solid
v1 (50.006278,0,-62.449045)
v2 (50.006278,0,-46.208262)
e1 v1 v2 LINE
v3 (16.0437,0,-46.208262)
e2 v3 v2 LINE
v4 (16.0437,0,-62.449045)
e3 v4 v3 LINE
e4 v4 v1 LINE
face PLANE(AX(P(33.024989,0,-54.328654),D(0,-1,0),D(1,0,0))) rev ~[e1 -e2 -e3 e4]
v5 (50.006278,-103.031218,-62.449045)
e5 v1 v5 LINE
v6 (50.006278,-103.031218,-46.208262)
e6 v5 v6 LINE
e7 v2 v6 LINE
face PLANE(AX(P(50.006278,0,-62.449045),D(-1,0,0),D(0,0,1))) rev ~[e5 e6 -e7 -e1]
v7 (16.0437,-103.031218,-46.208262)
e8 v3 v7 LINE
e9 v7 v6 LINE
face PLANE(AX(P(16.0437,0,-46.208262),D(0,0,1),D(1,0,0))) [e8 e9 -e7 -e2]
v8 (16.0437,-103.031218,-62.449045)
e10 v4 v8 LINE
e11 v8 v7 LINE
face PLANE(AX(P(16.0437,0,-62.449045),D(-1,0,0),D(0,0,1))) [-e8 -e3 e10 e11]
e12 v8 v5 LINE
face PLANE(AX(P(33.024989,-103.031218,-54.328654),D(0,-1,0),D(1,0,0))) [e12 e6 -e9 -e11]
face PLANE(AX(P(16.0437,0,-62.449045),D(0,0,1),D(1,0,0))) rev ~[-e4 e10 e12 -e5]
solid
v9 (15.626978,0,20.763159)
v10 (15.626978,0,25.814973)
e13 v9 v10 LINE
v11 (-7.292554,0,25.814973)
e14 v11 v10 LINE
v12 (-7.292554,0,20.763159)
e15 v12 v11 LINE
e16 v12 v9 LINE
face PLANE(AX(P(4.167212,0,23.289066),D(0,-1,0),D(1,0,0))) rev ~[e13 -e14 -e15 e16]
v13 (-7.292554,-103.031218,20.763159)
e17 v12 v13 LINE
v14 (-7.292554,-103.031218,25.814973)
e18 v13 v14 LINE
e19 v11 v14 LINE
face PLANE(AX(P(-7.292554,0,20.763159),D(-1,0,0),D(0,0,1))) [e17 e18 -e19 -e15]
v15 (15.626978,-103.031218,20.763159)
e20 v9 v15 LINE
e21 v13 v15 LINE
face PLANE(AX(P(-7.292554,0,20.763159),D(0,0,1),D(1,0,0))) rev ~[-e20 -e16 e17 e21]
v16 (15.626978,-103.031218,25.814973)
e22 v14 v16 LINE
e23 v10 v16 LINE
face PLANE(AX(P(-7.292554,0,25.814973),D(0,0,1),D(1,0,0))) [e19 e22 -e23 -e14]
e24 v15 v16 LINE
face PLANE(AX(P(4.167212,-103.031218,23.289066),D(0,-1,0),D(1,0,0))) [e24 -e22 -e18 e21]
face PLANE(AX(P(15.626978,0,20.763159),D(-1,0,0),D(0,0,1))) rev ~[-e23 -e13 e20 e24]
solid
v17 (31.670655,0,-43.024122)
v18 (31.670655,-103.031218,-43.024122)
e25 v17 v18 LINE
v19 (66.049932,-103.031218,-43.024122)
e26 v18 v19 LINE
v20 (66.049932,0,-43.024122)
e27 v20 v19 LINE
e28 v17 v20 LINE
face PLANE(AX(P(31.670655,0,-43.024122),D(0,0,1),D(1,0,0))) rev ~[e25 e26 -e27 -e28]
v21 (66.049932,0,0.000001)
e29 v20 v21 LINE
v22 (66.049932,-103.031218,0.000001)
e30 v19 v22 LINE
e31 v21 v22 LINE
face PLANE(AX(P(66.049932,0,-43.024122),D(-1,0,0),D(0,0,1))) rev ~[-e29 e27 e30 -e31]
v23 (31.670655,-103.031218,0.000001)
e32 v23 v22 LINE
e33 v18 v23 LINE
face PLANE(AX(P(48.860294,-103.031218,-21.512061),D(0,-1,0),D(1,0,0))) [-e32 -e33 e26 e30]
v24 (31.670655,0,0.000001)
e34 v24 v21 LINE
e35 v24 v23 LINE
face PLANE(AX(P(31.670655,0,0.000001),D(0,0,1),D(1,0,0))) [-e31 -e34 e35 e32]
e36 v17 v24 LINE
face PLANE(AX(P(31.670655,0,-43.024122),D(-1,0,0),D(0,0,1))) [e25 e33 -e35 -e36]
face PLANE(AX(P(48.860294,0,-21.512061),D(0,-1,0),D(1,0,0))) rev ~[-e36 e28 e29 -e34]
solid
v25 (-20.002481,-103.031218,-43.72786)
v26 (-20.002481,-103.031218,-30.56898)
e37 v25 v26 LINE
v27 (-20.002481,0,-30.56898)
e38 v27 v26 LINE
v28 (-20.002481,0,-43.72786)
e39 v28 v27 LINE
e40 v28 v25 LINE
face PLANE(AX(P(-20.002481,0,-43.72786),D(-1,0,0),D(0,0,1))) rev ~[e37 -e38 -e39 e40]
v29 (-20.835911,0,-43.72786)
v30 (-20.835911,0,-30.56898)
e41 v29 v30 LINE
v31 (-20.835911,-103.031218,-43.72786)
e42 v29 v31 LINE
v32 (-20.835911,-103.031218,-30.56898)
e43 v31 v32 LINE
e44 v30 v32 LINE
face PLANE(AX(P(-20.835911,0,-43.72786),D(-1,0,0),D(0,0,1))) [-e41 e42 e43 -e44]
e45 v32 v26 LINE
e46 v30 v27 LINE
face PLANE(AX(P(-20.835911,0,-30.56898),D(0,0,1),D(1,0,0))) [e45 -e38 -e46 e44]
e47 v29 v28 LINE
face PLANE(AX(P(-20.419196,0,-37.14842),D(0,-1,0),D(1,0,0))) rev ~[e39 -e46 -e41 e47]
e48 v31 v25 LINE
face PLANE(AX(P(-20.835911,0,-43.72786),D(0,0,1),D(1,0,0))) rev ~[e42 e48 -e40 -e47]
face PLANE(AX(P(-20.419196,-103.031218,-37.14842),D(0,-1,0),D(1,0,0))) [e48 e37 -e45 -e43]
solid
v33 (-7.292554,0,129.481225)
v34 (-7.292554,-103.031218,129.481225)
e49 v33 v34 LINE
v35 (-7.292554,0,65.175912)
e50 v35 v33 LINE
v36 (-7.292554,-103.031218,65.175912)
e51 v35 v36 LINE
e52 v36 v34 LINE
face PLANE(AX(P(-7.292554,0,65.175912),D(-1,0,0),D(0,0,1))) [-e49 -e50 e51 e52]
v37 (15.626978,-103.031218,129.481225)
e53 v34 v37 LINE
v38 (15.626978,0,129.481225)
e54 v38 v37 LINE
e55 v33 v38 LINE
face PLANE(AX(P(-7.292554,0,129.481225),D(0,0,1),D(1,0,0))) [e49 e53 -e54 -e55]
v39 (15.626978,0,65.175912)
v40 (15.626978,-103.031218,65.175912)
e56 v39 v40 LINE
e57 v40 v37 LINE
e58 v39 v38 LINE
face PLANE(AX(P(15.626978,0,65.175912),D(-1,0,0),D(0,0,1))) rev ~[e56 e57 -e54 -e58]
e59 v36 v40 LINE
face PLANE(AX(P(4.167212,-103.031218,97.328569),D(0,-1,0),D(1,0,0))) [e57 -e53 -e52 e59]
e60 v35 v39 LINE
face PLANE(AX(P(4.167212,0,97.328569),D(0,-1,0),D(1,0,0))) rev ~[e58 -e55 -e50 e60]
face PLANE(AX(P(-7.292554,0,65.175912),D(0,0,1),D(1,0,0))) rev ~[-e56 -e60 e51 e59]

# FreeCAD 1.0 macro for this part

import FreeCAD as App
import Part
import Sketcher
Q = App.Units.Quantity

doc = App.newDocument("Part")
body = doc.addObject("PartDesign::Body", "Body")
body.AllowCompound = True

sketch1 = doc.addObject("Sketcher::SketchObject", "Sketch")
body.addObject(sketch1)
sketch1.AttachmentSupport = (doc.XZ_Plane, [""])
sketch1.MapMode = "FlatFace"
sketch1.addGeometry(Part.LineSegment(App.Vector(-7.292554, 25.814973, 0), App.Vector(-7.292554, 20.763159, 0)), False)
sketch1.addGeometry(Part.LineSegment(App.Vector(-7.292554, 20.763159, 0), App.Vector(15.626978, 20.763159, 0)), False)
sketch1.addGeometry(Part.LineSegment(App.Vector(15.626978, 20.763159, 0), App.Vector(15.626978, 25.814973, 0)), False)
sketch1.addGeometry(Part.LineSegment(App.Vector(15.626978, 25.814973, 0), App.Vector(-7.292554, 25.814973, 0)), False)
sketch1.addGeometry(Part.LineSegment(App.Vector(31.670655, 0, 0), App.Vector(31.670655, -43.024122, 0)), False)
sketch1.addGeometry(Part.LineSegment(App.Vector(31.670655, -43.024122, 0), App.Vector(66.049932, -43.024122, 0)), False)
sketch1.addGeometry(Part.LineSegment(App.Vector(66.049932, -43.024122, 0), App.Vector(66.049932, 0, 0)), False)
sketch1.addGeometry(Part.LineSegment(App.Vector(66.049932, 0, 0), App.Vector(31.670655, 0, 0)), False)
sketch1.addGeometry(Part.LineSegment(App.Vector(-20.835911, -30.56898, 0), App.Vector(-20.835911, -43.72786, 0)), False)
sketch1.addGeometry(Part.LineSegment(App.Vector(-20.835911, -43.72786, 0), App.Vector(-20.002481, -43.72786, 0)), False)
sketch1.addGeometry(Part.LineSegment(App.Vector(-20.002481, -43.72786, 0), App.Vector(-20.002481, -30.56898, 0)), False)
sketch1.addGeometry(Part.LineSegment(App.Vector(-20.002481, -30.56898, 0), App.Vector(-20.835911, -30.56898, 0)), False)
sketch1.addGeometry(Part.LineSegment(App.Vector(16.0437, -46.208262, 0), App.Vector(16.0437, -62.449045, 0)), False)
sketch1.addGeometry(Part.LineSegment(App.Vector(16.0437, -62.449045, 0), App.Vector(50.006278, -62.449045, 0)), False)
sketch1.addGeometry(Part.LineSegment(App.Vector(50.006278, -62.449045, 0), App.Vector(50.006278, -46.208262, 0)), False)
sketch1.addGeometry(Part.LineSegment(App.Vector(50.006278, -46.208262, 0), App.Vector(16.0437, -46.208262, 0)), False)
sketch1.addGeometry(Part.LineSegment(App.Vector(-7.292554, 129.481225, 0), App.Vector(-7.292554, 65.175912, 0)), False)
sketch1.addGeometry(Part.LineSegment(App.Vector(-7.292554, 65.175912, 0), App.Vector(15.626978, 65.175912, 0)), False)
sketch1.addGeometry(Part.LineSegment(App.Vector(15.626978, 65.175912, 0), App.Vector(15.626978, 129.481225, 0)), False)
sketch1.addGeometry(Part.LineSegment(App.Vector(15.626978, 129.481225, 0), App.Vector(-7.292554, 129.481225, 0)), False)
sketch1.addConstraint(Sketcher.Constraint("Coincident", 0, 2, 1, 1))
sketch1.addConstraint(Sketcher.Constraint("Coincident", 1, 2, 2, 1))
sketch1.addConstraint(Sketcher.Constraint("Coincident", 2, 2, 3, 1))
sketch1.addConstraint(Sketcher.Constraint("Coincident", 3, 2, 0, 1))
sketch1.addConstraint(Sketcher.Constraint("Coincident", 4, 2, 5, 1))
sketch1.addConstraint(Sketcher.Constraint("Coincident", 5, 2, 6, 1))
sketch1.addConstraint(Sketcher.Constraint("Coincident", 6, 2, 7, 1))
sketch1.addConstraint(Sketcher.Constraint("Coincident", 7, 2, 4, 1))
sketch1.addConstraint(Sketcher.Constraint("Coincident", 8, 2, 9, 1))
sketch1.addConstraint(Sketcher.Constraint("Coincident", 9, 2, 10, 1))
sketch1.addConstraint(Sketcher.Constraint("Coincident", 10, 2, 11, 1))
sketch1.addConstraint(Sketcher.Constraint("Coincident", 11, 2, 8, 1))
sketch1.addConstraint(Sketcher.Constraint("Coincident", 12, 2, 13, 1))
sketch1.addConstraint(Sketcher.Constraint("Coincident", 13, 2, 14, 1))
sketch1.addConstraint(Sketcher.Constraint("Coincident", 14, 2, 15, 1))
sketch1.addConstraint(Sketcher.Constraint("Coincident", 15, 2, 12, 1))
sketch1.addConstraint(Sketcher.Constraint("Coincident", 16, 2, 17, 1))
sketch1.addConstraint(Sketcher.Constraint("Coincident", 17, 2, 18, 1))
sketch1.addConstraint(Sketcher.Constraint("Coincident", 18, 2, 19, 1))
sketch1.addConstraint(Sketcher.Constraint("Coincident", 19, 2, 16, 1))
sketch1.addConstraint(Sketcher.Constraint("Vertical", 0))
sketch1.addConstraint(Sketcher.Constraint("Horizontal", 1))
sketch1.addConstraint(Sketcher.Constraint("Vertical", 2))
sketch1.addConstraint(Sketcher.Constraint("Horizontal", 3))
sketch1.addConstraint(Sketcher.Constraint("Vertical", 4))
sketch1.addConstraint(Sketcher.Constraint("Horizontal", 5))
sketch1.addConstraint(Sketcher.Constraint("Vertical", 6))
sketch1.addConstraint(Sketcher.Constraint("Horizontal", 7))
sketch1.addConstraint(Sketcher.Constraint("Vertical", 8))
sketch1.addConstraint(Sketcher.Constraint("Horizontal", 9))
sketch1.addConstraint(Sketcher.Constraint("Vertical", 10))
sketch1.addConstraint(Sketcher.Constraint("Horizontal", 11))
sketch1.addConstraint(Sketcher.Constraint("Vertical", 12))
sketch1.addConstraint(Sketcher.Constraint("Horizontal", 13))
sketch1.addConstraint(Sketcher.Constraint("Vertical", 14))
sketch1.addConstraint(Sketcher.Constraint("Horizontal", 15))
sketch1.addConstraint(Sketcher.Constraint("Vertical", 16))
sketch1.addConstraint(Sketcher.Constraint("Horizontal", 17))
sketch1.addConstraint(Sketcher.Constraint("Vertical", 18))
sketch1.addConstraint(Sketcher.Constraint("Horizontal", 19))
sketch1.addConstraint(Sketcher.Constraint("PointOnObject", 6, 2, -1))
sketch1.addConstraint(Sketcher.Constraint("Vertical", 3, 2, 16, 2))
sketch1.addConstraint(Sketcher.Constraint("Vertical", 2, 2, 17, 2))
sketch1.addConstraint(Sketcher.Constraint("DistanceX", 1, 1, 1, 2, Q("22.919532 mm")))
sketch1.addConstraint(Sketcher.Constraint("DistanceX", 9, 1, 9, 2, Q("0.833429 mm")))
sketch1.addConstraint(Sketcher.Constraint("DistanceY", 8, 2, 8, 1, Q("13.15888 mm")))
sketch1.addConstraint(Sketcher.Constraint("DistanceX", -1, 1, 12, 2, Q("16.0437 mm")))
sketch1.addConstraint(Sketcher.Constraint("DistanceX", 5, 1, 5, 2, Q("34.379277 mm")))
sketch1.addConstraint(Sketcher.Constraint("DistanceX", 13, 1, 13, 2, Q("33.962578 mm")))
sketch1.addConstraint(Sketcher.Constraint("DistanceY", 0, 2, 0, 1, Q("5.051814 mm")))
sketch1.addConstraint(Sketcher.Constraint("DistanceY", 4, 2, 4, 1, Q("43.024123 mm")))
sketch1.addConstraint(Sketcher.Constraint("DistanceY", 12, 2, 12, 1, Q("16.240783 mm")))
sketch1.addConstraint(Sketcher.Constraint("DistanceY", 16, 2, 16, 1, Q("64.305313 mm")))
sketch1.addConstraint(Sketcher.Constraint("DistanceY", -1, 1, 0, 2, Q("20.763159 mm")))
sketch1.addConstraint(Sketcher.Constraint("DistanceX", 8, 2, -1, 1, Q("20.835911 mm")))
sketch1.addConstraint(Sketcher.Constraint("DistanceY", 8, 2, -1, 1, Q("43.72786 mm")))
sketch1.addConstraint(Sketcher.Constraint("DistanceX", 0, 2, 4, 2, Q("38.963209 mm")))
sketch1.addConstraint(Sketcher.Constraint("DistanceX", 8, 2, 1, 2, Q("36.462888 mm")))
sketch1.addConstraint(Sketcher.Constraint("DistanceY", 14, 2, 5, 2, Q("3.18414 mm")))
sketch1.addConstraint(Sketcher.Constraint("DistanceY", 3, 2, 16, 2, Q("39.36094 mm")))
pad1 = doc.addObject("PartDesign::Pad", "Pad")
body.addObject(pad1)
pad1.Profile = sketch1
pad1.Length = 103.031218

doc.recompute()
